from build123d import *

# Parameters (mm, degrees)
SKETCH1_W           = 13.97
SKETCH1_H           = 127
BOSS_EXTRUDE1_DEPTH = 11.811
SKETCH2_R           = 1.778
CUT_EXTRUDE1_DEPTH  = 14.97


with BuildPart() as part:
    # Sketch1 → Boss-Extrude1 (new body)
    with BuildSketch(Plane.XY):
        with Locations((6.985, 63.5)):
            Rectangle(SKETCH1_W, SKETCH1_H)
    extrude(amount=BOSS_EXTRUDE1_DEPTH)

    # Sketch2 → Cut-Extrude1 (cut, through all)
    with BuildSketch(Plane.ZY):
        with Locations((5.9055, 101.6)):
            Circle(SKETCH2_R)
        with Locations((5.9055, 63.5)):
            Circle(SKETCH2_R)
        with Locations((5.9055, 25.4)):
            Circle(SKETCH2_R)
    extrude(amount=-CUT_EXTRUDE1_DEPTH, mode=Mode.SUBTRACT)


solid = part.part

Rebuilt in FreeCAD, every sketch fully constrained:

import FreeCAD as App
import Part
import Sketcher
from FreeCAD import Vector
Q = App.Units.Quantity

doc = App.newDocument("Part")
body = doc.addObject("PartDesign::Body", "Body")

# Sketch on XY plane
sketch1 = doc.addObject("Sketcher::SketchObject", "Sketch")
body.addObject(sketch1)
sketch1.AttachmentSupport = (doc.XY_Plane, [""])
sketch1.MapMode = "FlatFace"
sketch1.addGeometry([
    Part.LineSegment(Vector(0, 127, 0), Vector(0, 0, 0)),
    Part.LineSegment(Vector(0, 0, 0), Vector(14, 0, 0)),
    Part.LineSegment(Vector(14, 0, 0), Vector(14, 127, 0)),
    Part.LineSegment(Vector(14, 127, 0), Vector(0, 127, 0)),
], False)
sketch1.addConstraint([
    Sketcher.Constraint("Coincident", 0, 2, 1, 1),
    Sketcher.Constraint("Coincident", 1, 2, 2, 1),
    Sketcher.Constraint("Coincident", 2, 2, 3, 1),
    Sketcher.Constraint("Coincident", 3, 2, 0, 1),
    Sketcher.Constraint("Vertical", 0),
    Sketcher.Constraint("Horizontal", 1),
    Sketcher.Constraint("Vertical", 2),
    Sketcher.Constraint("Horizontal", 3),
    Sketcher.Constraint("Coincident", 0, 2, -1, 1),
    Sketcher.Constraint("DistanceY", 0, 2, 0, 1, Q("5 in")),
    Sketcher.Constraint("DistanceX", 1, 1, 1, 2, Q("0.55 in")),
])
pad1 = doc.addObject("PartDesign::Pad", "Pad")
body.addObject(pad1)
pad1.Profile = sketch1
pad1.Length = Q("0.465 in")

# Sketch on YZ plane
sketch2 = doc.addObject("Sketcher::SketchObject", "Sketch001")
body.addObject(sketch2)
sketch2.AttachmentSupport = (doc.YZ_Plane, [""])
sketch2.MapMode = "FlatFace"
sketch2.addGeometry([
    Part.Circle(Vector(101.6, 5.9, 0), Vector(0, 0, 1), 1.8),
    Part.Circle(Vector(63.5, 5.9, 0), Vector(0, 0, 1), 1.8),
    Part.Circle(Vector(25.4, 5.9, 0), Vector(0, 0, 1), 1.8),
], False)
sketch2.addConstraint([
    Sketcher.Constraint("Equal", 0, 1),
    Sketcher.Constraint("Equal", 1, 2),
    Sketcher.Constraint("Horizontal", 0, 3, 1, 3),
    Sketcher.Constraint("Horizontal", 1, 3, 2, 3),
    Sketcher.Constraint("Diameter", 0, Q("0.14 in")),
    Sketcher.Constraint("DistanceX", -1, 1, 0, 3, Q("4 in")),
    Sketcher.Constraint("DistanceX", -1, 1, 2, 3, Q("1 in")),
    Sketcher.Constraint("DistanceX", -1, 1, 1, 3, Q("2.5 in")),
    Sketcher.Constraint("DistanceY", -1, 1, 0, 3, Q("0.2325 in")),
])
pocket1 = doc.addObject("PartDesign::Pocket", "Pocket")
body.addObject(pocket1)
pocket1.Profile = sketch2
pocket1.Type = "ThroughAll"
pocket1.Reversed = True

doc.recompute()
